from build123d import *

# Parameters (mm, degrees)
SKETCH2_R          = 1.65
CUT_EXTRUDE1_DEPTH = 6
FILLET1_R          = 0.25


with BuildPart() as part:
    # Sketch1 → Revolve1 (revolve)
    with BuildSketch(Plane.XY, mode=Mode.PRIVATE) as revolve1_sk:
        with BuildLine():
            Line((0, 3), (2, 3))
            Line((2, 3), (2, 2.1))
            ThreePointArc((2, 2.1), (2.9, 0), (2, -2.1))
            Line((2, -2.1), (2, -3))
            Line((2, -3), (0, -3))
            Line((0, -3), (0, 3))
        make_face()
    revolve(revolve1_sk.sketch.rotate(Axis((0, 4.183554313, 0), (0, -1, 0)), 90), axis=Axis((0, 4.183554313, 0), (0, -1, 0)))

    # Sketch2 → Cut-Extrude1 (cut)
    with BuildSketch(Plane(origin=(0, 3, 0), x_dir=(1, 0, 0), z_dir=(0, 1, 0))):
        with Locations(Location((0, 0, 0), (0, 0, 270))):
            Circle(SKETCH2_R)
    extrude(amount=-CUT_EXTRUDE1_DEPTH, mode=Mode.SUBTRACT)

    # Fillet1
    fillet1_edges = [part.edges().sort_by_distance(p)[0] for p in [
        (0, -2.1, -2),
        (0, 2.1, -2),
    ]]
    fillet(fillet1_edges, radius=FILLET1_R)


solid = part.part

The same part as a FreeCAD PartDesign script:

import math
import FreeCAD as App
import Part
import Sketcher
Q = App.Units.Quantity


def edges_at(feature, points):
    """Names of the edges that pass closest to the given points."""
    edges = feature.Shape.Edges
    near = lambda p: min(range(len(edges)), key=lambda i: edges[i].distToShape(Part.Vertex(*p))[0])
    return sorted({f"Edge{near(p) + 1}" for p in points})

doc = App.newDocument("Part")
body = doc.addObject("PartDesign::Body", "Body")

sketch1 = body.newObject("Sketcher::SketchObject", "Sketch")
sketch1.AttachmentSupport = (doc.getObject("XY_Plane"), [""])
sketch1.MapMode = "FlatFace"
sketch1.addGeometry(Part.LineSegment(App.Vector(2, 3, 0), App.Vector(0, 3, 0)), False)
sketch1.addGeometry(Part.LineSegment(App.Vector(0, 3, 0), App.Vector(0, -3, 0)), False)
sketch1.addGeometry(Part.LineSegment(App.Vector(0, -3, 0), App.Vector(2, -3, 0)), False)
sketch1.addGeometry(Part.LineSegment(App.Vector(2, -3, 0), App.Vector(2, -2.1, 0)), False)
sketch1.addGeometry(Part.ArcOfCircle(Part.Circle(App.Vector(0, 0, 0), App.Vector(0, 0, 1), 2.9), math.radians(-46), math.radians(46)), False)
sketch1.addGeometry(Part.LineSegment(App.Vector(2, 2.1, 0), App.Vector(2, 3, 0)), False)
sketch1.addConstraint(Sketcher.Constraint("Coincident", 0, 2, 1, 1))
sketch1.addConstraint(Sketcher.Constraint("Coincident", 1, 2, 2, 1))
sketch1.addConstraint(Sketcher.Constraint("Coincident", 2, 2, 3, 1))
sketch1.addConstraint(Sketcher.Constraint("Coincident", 3, 2, 4, 1))
sketch1.addConstraint(Sketcher.Constraint("Coincident", 4, 2, 5, 1))
sketch1.addConstraint(Sketcher.Constraint("Coincident", 5, 2, 0, 1))
sketch1.addConstraint(Sketcher.Constraint("Horizontal", 0))
sketch1.addConstraint(Sketcher.Constraint("Vertical", 1))
sketch1.addConstraint(Sketcher.Constraint("Horizontal", 2))
sketch1.addConstraint(Sketcher.Constraint("Vertical", 3))
sketch1.addConstraint(Sketcher.Constraint("Vertical", 5))
sketch1.addConstraint(Sketcher.Constraint("Coincident", 4, 3, -1, 1))
sketch1.addConstraint(Sketcher.Constraint("Symmetric", 0, 2, 1, 2, -1, 1))
sketch1.addConstraint(Sketcher.Constraint("Vertical", 3, 2, 4, 2))
sketch1.addConstraint(Sketcher.Constraint("Radius", 4, Q("2.9 mm")))
sketch1.addConstraint(Sketcher.Constraint("DistanceX", 0, 2, 0, 1, Q("2 mm")))
sketch1.addConstraint(Sketcher.Constraint("DistanceY", 1, 2, 1, 1, Q("6 mm")))
revolution = body.newObject("PartDesign::Revolution", "Revolution")
revolution.Profile = sketch1
revolution.ReferenceAxis = (sketch1, ["V_Axis"])
revolution.Angle = 360

sketch2 = body.newObject("Sketcher::SketchObject", "Sketch001")
sketch2.AttachmentSupport = (doc.getObject("XZ_Plane"), [""])
sketch2.MapMode = "FlatFace"
sketch2.AttachmentOffset = App.Placement(App.Vector(0, 0, -3), App.Rotation())
sketch2.addGeometry(Part.Circle(App.Vector(0, 0, 0), App.Vector(0, 0, 1), 1.6), False)
sketch2.addConstraint(Sketcher.Constraint("Coincident", 0, 3, -1, 1))
sketch2.addConstraint(Sketcher.Constraint("Diameter", 0, Q("3.3 mm")))
pocket1 = body.newObject("PartDesign::Pocket", "Pocket")
pocket1.Profile = sketch2
pocket1.Length = 6
pocket1.Reversed = True
doc.recompute()

fillet = body.newObject("PartDesign::Fillet", "Fillet")
fillet.Base = (pocket1, edges_at(pocket1, [(0, -2.1, -2), (0, 2.1, -2)]))
fillet.Radius = 0.25

doc.recompute()
